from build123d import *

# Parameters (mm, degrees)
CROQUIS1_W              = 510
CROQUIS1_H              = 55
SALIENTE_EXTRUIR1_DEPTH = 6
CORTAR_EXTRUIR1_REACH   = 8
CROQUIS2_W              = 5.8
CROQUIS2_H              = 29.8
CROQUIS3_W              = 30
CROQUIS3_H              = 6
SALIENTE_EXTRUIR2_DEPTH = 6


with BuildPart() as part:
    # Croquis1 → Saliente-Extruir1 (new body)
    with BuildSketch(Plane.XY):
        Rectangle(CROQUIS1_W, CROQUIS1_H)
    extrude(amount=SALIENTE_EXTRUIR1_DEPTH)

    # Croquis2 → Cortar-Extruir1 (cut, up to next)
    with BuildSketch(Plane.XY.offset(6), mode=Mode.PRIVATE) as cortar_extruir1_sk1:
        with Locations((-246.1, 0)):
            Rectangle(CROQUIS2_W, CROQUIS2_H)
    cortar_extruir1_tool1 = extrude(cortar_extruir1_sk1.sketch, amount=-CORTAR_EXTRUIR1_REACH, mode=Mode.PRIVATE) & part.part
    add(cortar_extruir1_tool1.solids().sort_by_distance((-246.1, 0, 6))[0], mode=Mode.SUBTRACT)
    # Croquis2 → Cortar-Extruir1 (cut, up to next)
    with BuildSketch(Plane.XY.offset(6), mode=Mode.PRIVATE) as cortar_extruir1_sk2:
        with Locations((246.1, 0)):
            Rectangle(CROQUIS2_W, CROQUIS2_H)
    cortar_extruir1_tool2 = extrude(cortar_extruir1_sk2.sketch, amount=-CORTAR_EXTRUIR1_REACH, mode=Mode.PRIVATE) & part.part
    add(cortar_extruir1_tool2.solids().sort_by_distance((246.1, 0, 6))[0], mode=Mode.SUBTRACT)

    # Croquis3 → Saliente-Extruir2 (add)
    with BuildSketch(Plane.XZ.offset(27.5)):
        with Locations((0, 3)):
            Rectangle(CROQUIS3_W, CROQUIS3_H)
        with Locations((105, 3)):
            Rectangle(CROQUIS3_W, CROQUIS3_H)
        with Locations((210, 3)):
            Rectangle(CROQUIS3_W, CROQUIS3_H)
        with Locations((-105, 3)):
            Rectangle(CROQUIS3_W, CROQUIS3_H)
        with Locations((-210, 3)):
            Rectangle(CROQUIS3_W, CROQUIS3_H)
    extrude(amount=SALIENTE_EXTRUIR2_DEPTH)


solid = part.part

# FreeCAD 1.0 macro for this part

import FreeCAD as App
import Part
import Sketcher
from FreeCAD import Vector
Q = App.Units.Quantity

doc = App.newDocument("Part")
body = doc.addObject("PartDesign::Body", "Body")

sketch1 = body.newObject("Sketcher::SketchObject", "Sketch")
sketch1.AttachmentSupport = (doc.getObject("XY_Plane"), [""])
sketch1.MapMode = "FlatFace"
sketch1.addGeometry([
    Part.LineSegment(Vector(-255, 28, 0), Vector(-255, -28, 0)),
    Part.LineSegment(Vector(-255, -28, 0), Vector(255, -28, 0)),
    Part.LineSegment(Vector(255, -28, 0), Vector(255, 28, 0)),
    Part.LineSegment(Vector(255, 28, 0), Vector(-255, 28, 0)),
], False)
sketch1.addConstraint([
    Sketcher.Constraint("Coincident", 0, 2, 1, 1),
    Sketcher.Constraint("Coincident", 1, 2, 2, 1),
    Sketcher.Constraint("Coincident", 2, 2, 3, 1),
    Sketcher.Constraint("Coincident", 3, 2, 0, 1),
    Sketcher.Constraint("Vertical", 0),
    Sketcher.Constraint("Horizontal", 1),
    Sketcher.Constraint("Vertical", 2),
    Sketcher.Constraint("Horizontal", 3),
    Sketcher.Constraint("Symmetric", 0, 2, 2, 2, -1, 1),
    Sketcher.Constraint("DistanceX", 1, 1, 1, 2, Q("510 mm")),
    Sketcher.Constraint("DistanceY", 0, 2, 0, 1, Q("55 mm")),
])
pad1 = body.newObject("PartDesign::Pad", "Pad")
pad1.Profile = sketch1
pad1.Length = 6

sketch2 = body.newObject("Sketcher::SketchObject", "Sketch001")
sketch2.AttachmentSupport = (doc.getObject("XY_Plane"), [""])
sketch2.MapMode = "FlatFace"
sketch2.AttachmentOffset = App.Placement(Vector(0, 0, 6), App.Rotation())
sketch2.addGeometry([
    Part.LineSegment(Vector(-249, 15, 0), Vector(-249, -15, 0)),
    Part.LineSegment(Vector(-249, -15, 0), Vector(-243, -15, 0)),
    Part.LineSegment(Vector(-243, -15, 0), Vector(-243, 15, 0)),
    Part.LineSegment(Vector(-243, 15, 0), Vector(-249, 15, 0)),
], False)
sketch2.addConstraint([
    Sketcher.Constraint("Coincident", 0, 2, 1, 1),
    Sketcher.Constraint("Coincident", 1, 2, 2, 1),
    Sketcher.Constraint("Coincident", 2, 2, 3, 1),
    Sketcher.Constraint("Coincident", 3, 2, 0, 1),
    Sketcher.Constraint("Vertical", 0),
    Sketcher.Constraint("Horizontal", 1),
    Sketcher.Constraint("Vertical", 2),
    Sketcher.Constraint("Horizontal", 3),
    Sketcher.Constraint("DistanceX", 1, 1, 1, 2, Q("5.8 mm")),
    Sketcher.Constraint("DistanceY", 0, 2, 0, 1, Q("29.8 mm")),
    Sketcher.Constraint("DistanceX", 0, 2, -1, 1, Q("249 mm")),
    Sketcher.Constraint("DistanceY", 0, 2, -1, 1, Q("14.9 mm")),
])
pocket1 = body.newObject("PartDesign::Pocket", "Pocket")
pocket1.Profile = sketch2
pocket1.Type = "UpToFirst"

sketch3 = body.newObject("Sketcher::SketchObject", "Sketch002")
sketch3.AttachmentSupport = (doc.getObject("XY_Plane"), [""])
sketch3.MapMode = "FlatFace"
sketch3.AttachmentOffset = App.Placement(Vector(0, 0, 6), App.Rotation())
sketch3.addGeometry([
    Part.LineSegment(Vector(243, 15, 0), Vector(243, -15, 0)),
    Part.LineSegment(Vector(243, -15, 0), Vector(249, -15, 0)),
    Part.LineSegment(Vector(249, -15, 0), Vector(249, 15, 0)),
    Part.LineSegment(Vector(249, 15, 0), Vector(243, 15, 0)),
], False)
sketch3.addConstraint([
    Sketcher.Constraint("Coincident", 0, 2, 1, 1),
    Sketcher.Constraint("Coincident", 1, 2, 2, 1),
    Sketcher.Constraint("Coincident", 2, 2, 3, 1),
    Sketcher.Constraint("Coincident", 3, 2, 0, 1),
    Sketcher.Constraint("Vertical", 0),
    Sketcher.Constraint("Horizontal", 1),
    Sketcher.Constraint("Vertical", 2),
    Sketcher.Constraint("Horizontal", 3),
    Sketcher.Constraint("DistanceX", 1, 1, 1, 2, Q("5.8 mm")),
    Sketcher.Constraint("DistanceY", 0, 2, 0, 1, Q("29.8 mm")),
    Sketcher.Constraint("DistanceX", -1, 1, 1, 2, Q("249 mm")),
    Sketcher.Constraint("DistanceY", 0, 2, -1, 1, Q("14.9 mm")),
])
pocket2 = body.newObject("PartDesign::Pocket", "Pocket001")
pocket2.Profile = sketch3
pocket2.Type = "UpToFirst"

sketch4 = body.newObject("Sketcher::SketchObject", "Sketch003")
sketch4.AttachmentSupport = (doc.getObject("XZ_Plane"), [""])
sketch4.MapMode = "FlatFace"
sketch4.AttachmentOffset = App.Placement(Vector(0, 0, 27.5), App.Rotation())
sketch4.addGeometry([
    Part.LineSegment(Vector(-15, 6, 0), Vector(-15, 0, 0)),
    Part.LineSegment(Vector(-15, 0, 0), Vector(15, 0, 0)),
    Part.LineSegment(Vector(15, 0, 0), Vector(15, 6, 0)),
    Part.LineSegment(Vector(15, 6, 0), Vector(-15, 6, 0)),
    Part.LineSegment(Vector(90, 6, 0), Vector(90, 0, 0)),
    Part.LineSegment(Vector(90, 0, 0), Vector(120, 0, 0)),
    Part.LineSegment(Vector(120, 0, 0), Vector(120, 6, 0)),
    Part.LineSegment(Vector(120, 6, 0), Vector(90, 6, 0)),
    Part.LineSegment(Vector(195, 6, 0), Vector(195, 0, 0)),
    Part.LineSegment(Vector(195, 0, 0), Vector(225, 0, 0)),
    Part.LineSegment(Vector(225, 0, 0), Vector(225, 6, 0)),
    Part.LineSegment(Vector(225, 6, 0), Vector(195, 6, 0)),
    Part.LineSegment(Vector(-120, 6, 0), Vector(-120, 0, 0)),
    Part.LineSegment(Vector(-120, 0, 0), Vector(-90, 0, 0)),
    Part.LineSegment(Vector(-90, 0, 0), Vector(-90, 6, 0)),
    Part.LineSegment(Vector(-90, 6, 0), Vector(-120, 6, 0)),
    Part.LineSegment(Vector(-225, 6, 0), Vector(-225, 0, 0)),
    Part.LineSegment(Vector(-225, 0, 0), Vector(-195, 0, 0)),
    Part.LineSegment(Vector(-195, 0, 0), Vector(-195, 6, 0)),
    Part.LineSegment(Vector(-195, 6, 0), Vector(-225, 6, 0)),
], False)
sketch4.addConstraint([
    Sketcher.Constraint("Coincident", 0, 2, 1, 1),
    Sketcher.Constraint("Coincident", 1, 2, 2, 1),
    Sketcher.Constraint("Coincident", 2, 2, 3, 1),
    Sketcher.Constraint("Coincident", 3, 2, 0, 1),
    Sketcher.Constraint("Coincident", 4, 2, 5, 1),
    Sketcher.Constraint("Coincident", 5, 2, 6, 1),
    Sketcher.Constraint("Coincident", 6, 2, 7, 1),
    Sketcher.Constraint("Coincident", 7, 2, 4, 1),
    Sketcher.Constraint("Coincident", 8, 2, 9, 1),
    Sketcher.Constraint("Coincident", 9, 2, 10, 1),
    Sketcher.Constraint("Coincident", 10, 2, 11, 1),
    Sketcher.Constraint("Coincident", 11, 2, 8, 1),
    Sketcher.Constraint("Coincident", 12, 2, 13, 1),
    Sketcher.Constraint("Coincident", 13, 2, 14, 1),
    Sketcher.Constraint("Coincident", 14, 2, 15, 1),
    Sketcher.Constraint("Coincident", 15, 2, 12, 1),
    Sketcher.Constraint("Coincident", 16, 2, 17, 1),
    Sketcher.Constraint("Coincident", 17, 2, 18, 1),
    Sketcher.Constraint("Coincident", 18, 2, 19, 1),
    Sketcher.Constraint("Coincident", 19, 2, 16, 1),
    Sketcher.Constraint("Vertical", 0),
    Sketcher.Constraint("Horizontal", 1),
    Sketcher.Constraint("Vertical", 2),
    Sketcher.Constraint("Horizontal", 3),
    Sketcher.Constraint("Vertical", 4),
    Sketcher.Constraint("Horizontal", 5),
    Sketcher.Constraint("Vertical", 6),
    Sketcher.Constraint("Horizontal", 7),
    Sketcher.Constraint("Vertical", 8),
    Sketcher.Constraint("Horizontal", 9),
    Sketcher.Constraint("Vertical", 10),
    Sketcher.Constraint("Horizontal", 11),
    Sketcher.Constraint("Vertical", 12),
    Sketcher.Constraint("Horizontal", 13),
    Sketcher.Constraint("Vertical", 14),
    Sketcher.Constraint("Horizontal", 15),
    Sketcher.Constraint("Vertical", 16),
    Sketcher.Constraint("Horizontal", 17),
    Sketcher.Constraint("Vertical", 18),
    Sketcher.Constraint("Horizontal", 19),
    Sketcher.Constraint("Symmetric", 0, 2, 1, 2, -1, 1),
    Sketcher.Constraint("Symmetric", 5, 2, 12, 2, -1, 1),
    Sketcher.Constraint("Symmetric", 9, 2, 16, 2, -1, 1),
    Sketcher.Constraint("Symmetric", 4, 2, 13, 2, -2),
    Sketcher.Constraint("Symmetric", 8, 2, 17, 2, -2),
    Sketcher.Constraint("Horizontal", 3, 2, 6, 2),
    Sketcher.Constraint("Horizontal", 7, 2, 10, 2),
    Sketcher.Constraint("Horizontal", 11, 2, 14, 2),
    Sketcher.Constraint("Horizontal", 15, 2, 18, 2),
    Sketcher.Constraint("Equal", 3, 5),
    Sketcher.Constraint("Equal", 7, 9),
    Sketcher.Constraint("DistanceX", 1, 1, 1, 2, Q("30 mm")),
    Sketcher.Constraint("DistanceY", 0, 2, 0, 1, Q("6 mm")),
    Sketcher.Constraint("DistanceX", -1, 1, 4, 2, Q("90 mm")),
    Sketcher.Constraint("DistanceX", -1, 1, 8, 2, Q("195 mm")),
])
pad2 = body.newObject("PartDesign::Pad", "Pad001")
pad2.Profile = sketch4
pad2.Length = 6

doc.recompute()
